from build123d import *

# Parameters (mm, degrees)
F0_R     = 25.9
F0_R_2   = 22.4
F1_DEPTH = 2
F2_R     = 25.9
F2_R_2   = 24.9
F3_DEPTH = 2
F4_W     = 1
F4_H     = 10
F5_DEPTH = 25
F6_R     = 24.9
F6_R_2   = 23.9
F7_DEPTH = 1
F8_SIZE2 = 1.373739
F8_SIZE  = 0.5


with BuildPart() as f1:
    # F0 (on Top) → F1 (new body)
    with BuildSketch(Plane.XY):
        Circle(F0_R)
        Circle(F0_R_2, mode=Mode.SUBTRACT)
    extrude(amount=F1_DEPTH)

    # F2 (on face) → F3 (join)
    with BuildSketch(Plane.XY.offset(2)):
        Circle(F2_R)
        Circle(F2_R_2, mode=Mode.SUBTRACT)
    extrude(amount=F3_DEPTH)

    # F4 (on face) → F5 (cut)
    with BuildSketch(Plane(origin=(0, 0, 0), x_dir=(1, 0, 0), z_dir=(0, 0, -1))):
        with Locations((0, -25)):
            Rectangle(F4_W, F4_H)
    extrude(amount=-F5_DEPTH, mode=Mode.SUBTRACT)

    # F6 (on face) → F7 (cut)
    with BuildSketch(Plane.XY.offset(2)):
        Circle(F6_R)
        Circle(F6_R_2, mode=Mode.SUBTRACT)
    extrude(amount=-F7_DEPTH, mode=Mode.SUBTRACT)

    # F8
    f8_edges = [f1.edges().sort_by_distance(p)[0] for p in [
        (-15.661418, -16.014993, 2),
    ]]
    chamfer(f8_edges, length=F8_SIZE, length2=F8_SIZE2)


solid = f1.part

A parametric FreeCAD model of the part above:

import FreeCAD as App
import Part
import Sketcher


def edges_at(feature, points):
    """Names of the edges that pass closest to the given points."""
    edges = feature.Shape.Edges
    near = lambda p: min(range(len(edges)), key=lambda i: edges[i].distToShape(Part.Vertex(*p))[0])
    return sorted({f"Edge{near(p) + 1}" for p in points})

doc = App.newDocument("Part")
body = doc.addObject("PartDesign::Body", "Body")

# Sketch on XY plane
sketch1 = body.newObject("Sketcher::SketchObject", "Sketch")
sketch1.AttachmentSupport = (doc.getObject("XY_Plane"), [""])
sketch1.MapMode = "FlatFace"
sketch1.addGeometry(Part.Circle(App.Vector(0, 0, 0), App.Vector(0, 0, 1), 26), False)
sketch1.addGeometry(Part.Circle(App.Vector(0, 0, 0), App.Vector(0, 0, 1), 22), False)
sketch1.addConstraint(Sketcher.Constraint("Coincident", 0, 3, -1, 1))
sketch1.addConstraint(Sketcher.Constraint("Coincident", 1, 3, -1, 1))
sketch1.addConstraint(Sketcher.Constraint("Diameter", 0, 51.8))
sketch1.addConstraint(Sketcher.Constraint("Diameter", 1, 44.8))
pad1 = body.newObject("PartDesign::Pad", "Pad")
pad1.Profile = sketch1
pad1.Length = 2

# Sketch on XY plane
sketch2 = body.newObject("Sketcher::SketchObject", "Sketch001")
sketch2.AttachmentSupport = (doc.getObject("XY_Plane"), [""])
sketch2.MapMode = "FlatFace"
sketch2.AttachmentOffset = App.Placement(App.Vector(0, 0, 2), App.Rotation())
sketch2.addGeometry(Part.Circle(App.Vector(0, 0, 0), App.Vector(0, 0, 1), 26), False)
sketch2.addGeometry(Part.Circle(App.Vector(0, 0, 0), App.Vector(0, 0, 1), 25), False)
sketch2.addConstraint(Sketcher.Constraint("Coincident", 0, 3, -1, 1))
sketch2.addConstraint(Sketcher.Constraint("Coincident", 1, 3, -1, 1))
sketch2.addConstraint(Sketcher.Constraint("Diameter", 0, 51.8))
sketch2.addConstraint(Sketcher.Constraint("Diameter", 1, 49.8))
pad2 = body.newObject("PartDesign::Pad", "Pad001")
pad2.Profile = sketch2
pad2.Length = 2

# Sketch on XY plane
sketch3 = body.newObject("Sketcher::SketchObject", "Sketch002")
sketch3.AttachmentSupport = (doc.getObject("XY_Plane"), [""])
sketch3.MapMode = "FlatFace"
sketch3.addGeometry(Part.LineSegment(App.Vector(-0.5, 20, 0), App.Vector(-0.5, 30, 0)), False)
sketch3.addGeometry(Part.LineSegment(App.Vector(-0.5, 30, 0), App.Vector(0.5, 30, 0)), False)
sketch3.addGeometry(Part.LineSegment(App.Vector(0.5, 30, 0), App.Vector(0.5, 20, 0)), False)
sketch3.addGeometry(Part.LineSegment(App.Vector(0.5, 20, 0), App.Vector(-0.5, 20, 0)), False)
sketch3.addConstraint(Sketcher.Constraint("Coincident", 0, 2, 1, 1))
sketch3.addConstraint(Sketcher.Constraint("Coincident", 1, 2, 2, 1))
sketch3.addConstraint(Sketcher.Constraint("Coincident", 2, 2, 3, 1))
sketch3.addConstraint(Sketcher.Constraint("Coincident", 3, 2, 0, 1))
sketch3.addConstraint(Sketcher.Constraint("Vertical", 0))
sketch3.addConstraint(Sketcher.Constraint("Horizontal", 1))
sketch3.addConstraint(Sketcher.Constraint("Vertical", 2))
sketch3.addConstraint(Sketcher.Constraint("Horizontal", 3))
sketch3.addConstraint(Sketcher.Constraint("DistanceX", 1, 1, 1, 2, 1.0))
sketch3.addConstraint(Sketcher.Constraint("DistanceY", 0, 1, 0, 2, 10.0))
sketch3.addConstraint(Sketcher.Constraint("DistanceY", -1, 1, 0, 2, 30.0))
sketch3.addConstraint(Sketcher.Constraint("DistanceX", 0, 2, -1, 1, 0.5))
pocket1 = body.newObject("PartDesign::Pocket", "Pocket")
pocket1.Profile = sketch3
pocket1.Length = 25
pocket1.Reversed = True

# Sketch on XY plane
sketch4 = body.newObject("Sketcher::SketchObject", "Sketch003")
sketch4.AttachmentSupport = (doc.getObject("XY_Plane"), [""])
sketch4.MapMode = "FlatFace"
sketch4.AttachmentOffset = App.Placement(App.Vector(0, 0, 2), App.Rotation())
sketch4.addGeometry(Part.Circle(App.Vector(0, 0, 0), App.Vector(0, 0, 1), 25), False)
sketch4.addGeometry(Part.Circle(App.Vector(0, 0, 0), App.Vector(0, 0, 1), 24), False)
sketch4.addConstraint(Sketcher.Constraint("Coincident", 0, 3, -1, 1))
sketch4.addConstraint(Sketcher.Constraint("Coincident", 1, 3, -1, 1))
sketch4.addConstraint(Sketcher.Constraint("Diameter", 0, 49.8))
sketch4.addConstraint(Sketcher.Constraint("Diameter", 1, 47.8))
pocket2 = body.newObject("PartDesign::Pocket", "Pocket001")
pocket2.Profile = sketch4
pocket2.Length = 1
doc.recompute()

chamfer = body.newObject("PartDesign::Chamfer", "Chamfer")
chamfer.Base = (pocket2, edges_at(pocket2, [(-15.661, -16.015, 2)]))
chamfer.ChamferType = "Two distances"
chamfer.Size = 0.5
chamfer.Size2 = 1.373739

doc.recompute()
